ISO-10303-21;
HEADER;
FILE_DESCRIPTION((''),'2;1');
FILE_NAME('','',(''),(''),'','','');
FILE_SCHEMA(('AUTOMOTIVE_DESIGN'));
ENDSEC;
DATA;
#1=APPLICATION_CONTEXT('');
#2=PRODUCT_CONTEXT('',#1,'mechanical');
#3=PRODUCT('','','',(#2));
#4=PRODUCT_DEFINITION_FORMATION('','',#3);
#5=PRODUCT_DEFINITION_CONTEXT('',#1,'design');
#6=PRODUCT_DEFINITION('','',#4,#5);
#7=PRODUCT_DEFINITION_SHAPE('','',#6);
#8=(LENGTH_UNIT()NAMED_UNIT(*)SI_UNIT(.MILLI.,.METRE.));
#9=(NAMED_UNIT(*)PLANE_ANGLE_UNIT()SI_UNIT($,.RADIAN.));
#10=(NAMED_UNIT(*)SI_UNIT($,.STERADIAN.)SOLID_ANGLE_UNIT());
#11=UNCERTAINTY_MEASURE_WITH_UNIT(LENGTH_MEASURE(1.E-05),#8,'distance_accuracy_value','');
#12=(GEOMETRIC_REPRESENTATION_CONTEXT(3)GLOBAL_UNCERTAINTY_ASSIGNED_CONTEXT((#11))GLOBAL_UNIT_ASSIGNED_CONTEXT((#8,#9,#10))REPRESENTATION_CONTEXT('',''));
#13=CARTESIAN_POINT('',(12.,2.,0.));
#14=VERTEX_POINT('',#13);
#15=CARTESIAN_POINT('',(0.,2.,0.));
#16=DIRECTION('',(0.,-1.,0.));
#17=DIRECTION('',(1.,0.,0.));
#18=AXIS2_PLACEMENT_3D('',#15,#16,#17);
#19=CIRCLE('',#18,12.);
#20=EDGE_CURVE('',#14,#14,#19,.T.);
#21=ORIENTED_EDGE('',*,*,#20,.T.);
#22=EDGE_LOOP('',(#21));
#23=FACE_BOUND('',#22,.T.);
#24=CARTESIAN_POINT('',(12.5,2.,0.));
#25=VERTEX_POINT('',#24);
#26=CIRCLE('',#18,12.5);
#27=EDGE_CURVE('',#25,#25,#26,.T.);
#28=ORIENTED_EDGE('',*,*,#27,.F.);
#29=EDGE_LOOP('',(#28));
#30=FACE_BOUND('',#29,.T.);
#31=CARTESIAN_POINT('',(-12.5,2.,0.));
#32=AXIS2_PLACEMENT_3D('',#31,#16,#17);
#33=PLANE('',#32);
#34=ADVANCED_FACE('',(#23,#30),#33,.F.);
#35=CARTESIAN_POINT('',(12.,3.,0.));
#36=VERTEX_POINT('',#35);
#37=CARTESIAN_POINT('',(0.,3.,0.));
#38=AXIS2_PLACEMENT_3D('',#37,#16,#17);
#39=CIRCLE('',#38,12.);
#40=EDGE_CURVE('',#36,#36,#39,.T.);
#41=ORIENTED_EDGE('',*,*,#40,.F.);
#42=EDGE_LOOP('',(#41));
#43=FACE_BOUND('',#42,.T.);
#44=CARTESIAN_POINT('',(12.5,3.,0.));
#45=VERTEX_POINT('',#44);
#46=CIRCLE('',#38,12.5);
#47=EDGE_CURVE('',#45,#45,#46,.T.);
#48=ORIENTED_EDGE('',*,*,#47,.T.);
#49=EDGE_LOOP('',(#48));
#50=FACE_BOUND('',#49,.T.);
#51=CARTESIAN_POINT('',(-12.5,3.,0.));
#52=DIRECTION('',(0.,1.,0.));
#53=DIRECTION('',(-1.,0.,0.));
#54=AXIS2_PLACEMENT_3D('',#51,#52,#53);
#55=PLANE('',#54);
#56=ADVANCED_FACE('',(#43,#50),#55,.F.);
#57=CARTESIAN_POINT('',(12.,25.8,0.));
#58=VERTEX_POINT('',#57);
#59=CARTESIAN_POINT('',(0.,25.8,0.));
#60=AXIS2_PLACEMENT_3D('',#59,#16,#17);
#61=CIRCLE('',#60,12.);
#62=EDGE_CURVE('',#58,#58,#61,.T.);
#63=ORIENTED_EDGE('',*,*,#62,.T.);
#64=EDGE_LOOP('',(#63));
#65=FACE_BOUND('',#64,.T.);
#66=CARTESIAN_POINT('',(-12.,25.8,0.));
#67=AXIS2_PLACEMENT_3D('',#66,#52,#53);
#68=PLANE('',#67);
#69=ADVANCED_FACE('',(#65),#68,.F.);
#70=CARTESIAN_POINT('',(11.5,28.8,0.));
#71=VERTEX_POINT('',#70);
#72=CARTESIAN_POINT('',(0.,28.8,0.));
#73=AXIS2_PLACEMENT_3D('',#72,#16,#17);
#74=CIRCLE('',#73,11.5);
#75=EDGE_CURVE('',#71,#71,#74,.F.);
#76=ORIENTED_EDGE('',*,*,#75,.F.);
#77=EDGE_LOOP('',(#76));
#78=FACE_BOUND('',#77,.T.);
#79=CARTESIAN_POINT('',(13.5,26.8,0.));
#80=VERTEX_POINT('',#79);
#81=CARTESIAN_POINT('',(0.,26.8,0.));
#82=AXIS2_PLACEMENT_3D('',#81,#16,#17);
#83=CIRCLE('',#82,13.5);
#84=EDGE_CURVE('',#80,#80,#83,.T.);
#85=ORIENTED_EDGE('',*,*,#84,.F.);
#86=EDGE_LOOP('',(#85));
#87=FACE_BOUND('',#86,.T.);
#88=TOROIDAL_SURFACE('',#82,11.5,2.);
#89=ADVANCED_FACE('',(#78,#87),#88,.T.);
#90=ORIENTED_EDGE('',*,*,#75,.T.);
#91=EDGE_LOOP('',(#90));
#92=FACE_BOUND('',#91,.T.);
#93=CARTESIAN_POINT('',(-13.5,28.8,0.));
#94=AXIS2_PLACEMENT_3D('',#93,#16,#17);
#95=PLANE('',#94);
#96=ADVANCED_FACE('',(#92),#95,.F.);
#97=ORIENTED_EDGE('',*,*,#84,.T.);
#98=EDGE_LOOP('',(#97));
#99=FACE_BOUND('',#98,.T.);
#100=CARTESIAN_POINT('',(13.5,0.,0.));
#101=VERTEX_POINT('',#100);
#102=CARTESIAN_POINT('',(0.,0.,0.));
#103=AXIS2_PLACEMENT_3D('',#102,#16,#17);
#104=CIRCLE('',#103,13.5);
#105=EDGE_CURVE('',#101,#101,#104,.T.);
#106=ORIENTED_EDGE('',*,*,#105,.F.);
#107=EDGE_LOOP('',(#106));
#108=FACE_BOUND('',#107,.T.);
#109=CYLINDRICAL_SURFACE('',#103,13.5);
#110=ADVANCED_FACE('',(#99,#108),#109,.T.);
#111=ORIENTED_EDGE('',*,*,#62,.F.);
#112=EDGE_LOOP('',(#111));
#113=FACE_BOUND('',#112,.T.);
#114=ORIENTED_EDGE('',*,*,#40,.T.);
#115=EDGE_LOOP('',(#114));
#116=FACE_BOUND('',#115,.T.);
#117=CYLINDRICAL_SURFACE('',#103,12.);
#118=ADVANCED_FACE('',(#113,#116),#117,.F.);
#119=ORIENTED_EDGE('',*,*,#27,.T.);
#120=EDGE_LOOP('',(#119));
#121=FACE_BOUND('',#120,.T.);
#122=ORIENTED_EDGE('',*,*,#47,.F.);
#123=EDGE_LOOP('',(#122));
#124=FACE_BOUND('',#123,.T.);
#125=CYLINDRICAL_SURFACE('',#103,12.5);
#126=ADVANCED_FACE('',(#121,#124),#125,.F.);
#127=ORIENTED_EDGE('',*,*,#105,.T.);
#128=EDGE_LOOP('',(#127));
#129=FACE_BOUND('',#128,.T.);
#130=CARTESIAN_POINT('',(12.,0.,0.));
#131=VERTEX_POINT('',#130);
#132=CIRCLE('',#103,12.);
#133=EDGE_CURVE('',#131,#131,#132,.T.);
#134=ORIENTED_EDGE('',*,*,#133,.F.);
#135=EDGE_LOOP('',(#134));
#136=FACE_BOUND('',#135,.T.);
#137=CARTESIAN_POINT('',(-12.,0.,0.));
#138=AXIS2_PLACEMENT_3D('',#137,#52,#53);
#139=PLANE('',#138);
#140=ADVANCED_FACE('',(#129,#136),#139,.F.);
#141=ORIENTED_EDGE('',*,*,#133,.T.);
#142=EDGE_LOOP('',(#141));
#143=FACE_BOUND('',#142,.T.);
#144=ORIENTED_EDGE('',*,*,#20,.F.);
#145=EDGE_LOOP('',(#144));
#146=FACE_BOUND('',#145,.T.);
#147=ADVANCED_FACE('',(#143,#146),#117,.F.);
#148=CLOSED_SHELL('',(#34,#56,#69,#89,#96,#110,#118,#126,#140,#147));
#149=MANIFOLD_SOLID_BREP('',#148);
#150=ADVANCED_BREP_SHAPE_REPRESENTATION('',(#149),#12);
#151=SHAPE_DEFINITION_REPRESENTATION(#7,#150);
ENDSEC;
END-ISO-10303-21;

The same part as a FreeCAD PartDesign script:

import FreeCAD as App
import Part
import Sketcher
Q = App.Units.Quantity


def edges_at(feature, points):
    """Names of the edges that pass closest to the given points."""
    edges = feature.Shape.Edges
    near = lambda p: min(range(len(edges)), key=lambda i: edges[i].distToShape(Part.Vertex(*p))[0])
    return sorted({f"Edge{near(p) + 1}" for p in points})

doc = App.newDocument("Part")
body = doc.addObject("PartDesign::Body", "Body")

# Sketch on XY plane
sketch1 = doc.addObject("Sketcher::SketchObject", "Sketch")
body.addObject(sketch1)
sketch1.AttachmentSupport = (doc.XY_Plane, [""])
sketch1.MapMode = "FlatFace"
sketch1.addGeometry(Part.LineSegment(App.Vector(-13.5, 28.8, 0), App.Vector(-13.5, 0, 0)), False)
sketch1.addGeometry(Part.LineSegment(App.Vector(-13.5, 0, 0), App.Vector(-12, 0, 0)), False)
sketch1.addGeometry(Part.LineSegment(App.Vector(-12, 0, 0), App.Vector(-12, 2, 0)), False)
sketch1.addGeometry(Part.LineSegment(App.Vector(-12, 2, 0), App.Vector(-12.5, 2, 0)), False)
sketch1.addGeometry(Part.LineSegment(App.Vector(-12.5, 2, 0), App.Vector(-12.5, 3, 0)), False)
sketch1.addGeometry(Part.LineSegment(App.Vector(-12.5, 3, 0), App.Vector(-12, 3, 0)), False)
sketch1.addGeometry(Part.LineSegment(App.Vector(-12, 3, 0), App.Vector(-12, 25.8, 0)), False)
sketch1.addGeometry(Part.LineSegment(App.Vector(-12, 25.8, 0), App.Vector(0, 25.8, 0)), False)
sketch1.addGeometry(Part.LineSegment(App.Vector(0, 25.8, 0), App.Vector(0, 28.8, 0)), False)
sketch1.addGeometry(Part.LineSegment(App.Vector(0, 28.8, 0), App.Vector(-13.5, 28.8, 0)), False)
sketch1.addConstraint(Sketcher.Constraint("Coincident", 0, 2, 1, 1))
sketch1.addConstraint(Sketcher.Constraint("Coincident", 1, 2, 2, 1))
sketch1.addConstraint(Sketcher.Constraint("Coincident", 2, 2, 3, 1))
sketch1.addConstraint(Sketcher.Constraint("Coincident", 3, 2, 4, 1))
sketch1.addConstraint(Sketcher.Constraint("Coincident", 4, 2, 5, 1))
sketch1.addConstraint(Sketcher.Constraint("Coincident", 5, 2, 6, 1))
sketch1.addConstraint(Sketcher.Constraint("Coincident", 6, 2, 7, 1))
sketch1.addConstraint(Sketcher.Constraint("Coincident", 7, 2, 8, 1))
sketch1.addConstraint(Sketcher.Constraint("Coincident", 8, 2, 9, 1))
sketch1.addConstraint(Sketcher.Constraint("Coincident", 9, 2, 0, 1))
sketch1.addConstraint(Sketcher.Constraint("Vertical", 0))
sketch1.addConstraint(Sketcher.Constraint("Horizontal", 1))
sketch1.addConstraint(Sketcher.Constraint("Vertical", 2))
sketch1.addConstraint(Sketcher.Constraint("Horizontal", 3))
sketch1.addConstraint(Sketcher.Constraint("Vertical", 4))
sketch1.addConstraint(Sketcher.Constraint("Horizontal", 5))
sketch1.addConstraint(Sketcher.Constraint("Vertical", 6))
sketch1.addConstraint(Sketcher.Constraint("Horizontal", 7))
sketch1.addConstraint(Sketcher.Constraint("Vertical", 8))
sketch1.addConstraint(Sketcher.Constraint("Horizontal", 9))
sketch1.addConstraint(Sketcher.Constraint("PointOnObject", 0, 2, -1))
sketch1.addConstraint(Sketcher.Constraint("PointOnObject", 7, 2, -2))
sketch1.addConstraint(Sketcher.Constraint("Vertical", 2, 2, 5, 2))
sketch1.addConstraint(Sketcher.Constraint("DistanceX", 7, 1, 7, 2, Q("12 mm")))
sketch1.addConstraint(Sketcher.Constraint("DistanceY", 2, 1, 2, 2, Q("2 mm")))
sketch1.addConstraint(Sketcher.Constraint("DistanceY", 4, 1, 4, 2, Q("1 mm")))
sketch1.addConstraint(Sketcher.Constraint("DistanceY", 8, 1, 8, 2, Q("3 mm")))
sketch1.addConstraint(Sketcher.Constraint("DistanceX", 1, 1, 1, 2, Q("1.5 mm")))
sketch1.addConstraint(Sketcher.Constraint("DistanceX", 3, 2, 3, 1, Q("0.5 mm")))
sketch1.addConstraint(Sketcher.Constraint("DistanceY", 0, 2, 0, 1, Q("28.8 mm")))
revolution = doc.addObject("PartDesign::Revolution", "Revolution")
body.addObject(revolution)
revolution.Profile = sketch1
revolution.ReferenceAxis = (sketch1, ["V_Axis"])
revolution.Angle = 360
doc.recompute()

fillet = doc.addObject("PartDesign::Fillet", "Fillet")
body.addObject(fillet)
fillet.Base = (revolution, edges_at(revolution, [(-13.5, 28.8, 0)]))
fillet.Radius = 2

doc.recompute()
